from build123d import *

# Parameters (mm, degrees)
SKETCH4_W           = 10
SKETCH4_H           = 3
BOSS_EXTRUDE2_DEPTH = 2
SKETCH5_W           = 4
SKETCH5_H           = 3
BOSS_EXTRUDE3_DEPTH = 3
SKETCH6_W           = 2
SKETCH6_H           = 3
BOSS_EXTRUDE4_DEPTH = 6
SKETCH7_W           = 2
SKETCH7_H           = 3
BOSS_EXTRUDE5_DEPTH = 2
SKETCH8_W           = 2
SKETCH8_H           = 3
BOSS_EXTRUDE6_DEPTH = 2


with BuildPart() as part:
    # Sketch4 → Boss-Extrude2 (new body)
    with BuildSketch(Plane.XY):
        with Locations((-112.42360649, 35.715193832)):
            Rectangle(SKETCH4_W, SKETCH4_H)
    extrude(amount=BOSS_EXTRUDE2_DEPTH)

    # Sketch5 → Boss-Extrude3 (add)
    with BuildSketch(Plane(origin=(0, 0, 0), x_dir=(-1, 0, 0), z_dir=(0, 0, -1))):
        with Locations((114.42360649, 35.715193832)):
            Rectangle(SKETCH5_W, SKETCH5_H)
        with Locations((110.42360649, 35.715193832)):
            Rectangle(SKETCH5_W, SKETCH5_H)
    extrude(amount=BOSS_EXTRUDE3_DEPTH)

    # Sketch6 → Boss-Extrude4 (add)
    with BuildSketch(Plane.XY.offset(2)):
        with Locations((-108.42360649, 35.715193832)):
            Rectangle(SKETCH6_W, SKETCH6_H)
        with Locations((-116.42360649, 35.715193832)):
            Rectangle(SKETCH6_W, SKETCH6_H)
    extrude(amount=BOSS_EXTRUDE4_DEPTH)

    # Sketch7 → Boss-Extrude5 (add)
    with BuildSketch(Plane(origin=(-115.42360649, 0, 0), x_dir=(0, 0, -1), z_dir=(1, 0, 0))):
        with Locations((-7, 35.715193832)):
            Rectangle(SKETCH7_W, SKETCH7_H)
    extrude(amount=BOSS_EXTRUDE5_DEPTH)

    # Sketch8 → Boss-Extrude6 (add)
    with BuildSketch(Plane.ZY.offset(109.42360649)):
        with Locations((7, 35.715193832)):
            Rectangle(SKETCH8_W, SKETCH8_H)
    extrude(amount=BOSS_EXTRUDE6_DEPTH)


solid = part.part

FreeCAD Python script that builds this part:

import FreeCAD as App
import Part
import Sketcher

V = App.Vector
Q = App.Units.Quantity

doc = App.newDocument("Part")
params = doc.addObject("Spreadsheet::Sheet", "Params")
for row, (alias, value) in enumerate([
    ("sketch1_width", "10 mm"),
    ("sketch1_height", "3 mm"),
    ("pad1_length", "2 mm"),
    ("sketch2_width", "8 mm"),
    ("sketch2_height", "3 mm"),
    ("pad2_length", "3 mm"),
    ("sketch3_width", "2 mm"),
    ("sketch3_height", "3 mm"),
    ("pad3_length", "6 mm"),
    ("sketch4_width", "3 mm"),
    ("sketch4_height", "2 mm"),
    ("pad4_length", "2 mm"),
    ("sketch5_width", "3 mm"),
    ("sketch5_height", "2 mm"),
    ("pad5_length", "2 mm"),
], start=1):
    params.set(f"A{row}", alias)
    params.set(f"B{row}", "=" + value)
    params.setAlias(f"B{row}", alias)

body = doc.addObject("PartDesign::Body", "Body")

sketch1 = body.newObject("Sketcher::SketchObject", "Sketch")
sketch1.AttachmentSupport = (doc.getObject("XY_Plane"), [""])
sketch1.MapMode = "FlatFace"
sketch1.addGeometry([
    Part.LineSegment(V(-117.4, 37.2, 0), V(-117.4, 34.2, 0)),
    Part.LineSegment(V(-117.4, 34.2, 0), V(-107.4, 34.2, 0)),
    Part.LineSegment(V(-107.4, 34.2, 0), V(-107.4, 37.2, 0)),
    Part.LineSegment(V(-107.4, 37.2, 0), V(-117.4, 37.2, 0)),
], False)
sketch1.addConstraint([
    Sketcher.Constraint("Coincident", 0, 2, 1, 1),
    Sketcher.Constraint("Coincident", 1, 2, 2, 1),
    Sketcher.Constraint("Coincident", 2, 2, 3, 1),
    Sketcher.Constraint("Coincident", 3, 2, 0, 1),
    Sketcher.Constraint("Vertical", 0),
    Sketcher.Constraint("Horizontal", 1),
    Sketcher.Constraint("Vertical", 2),
    Sketcher.Constraint("Horizontal", 3),
    Sketcher.Constraint("DistanceX", 1, 1, 1, 2, Q("10 mm")),
    Sketcher.Constraint("DistanceY", 0, 2, 0, 1, Q("3 mm")),
    Sketcher.Constraint("DistanceX", 0, 2, -1, 1, Q("117.423606 mm")),
    Sketcher.Constraint("DistanceY", -1, 1, 0, 2, Q("34.215194 mm")),
])
sketch1.setExpression("Constraints[8]", "Params.sketch1_width")
sketch1.setExpression("Constraints[9]", "Params.sketch1_height")
pad1 = body.newObject("PartDesign::Pad", "Pad")
pad1.Profile = sketch1
pad1.setExpression("Length", "Params.pad1_length")

sketch2 = body.newObject("Sketcher::SketchObject", "Sketch001")
sketch2.AttachmentSupport = (doc.getObject("XY_Plane"), [""])
sketch2.MapMode = "FlatFace"
sketch2.addGeometry([
    Part.LineSegment(V(-116.4, 34.2, 0), V(-116.4, 37.2, 0)),
    Part.LineSegment(V(-116.4, 37.2, 0), V(-108.4, 37.2, 0)),
    Part.LineSegment(V(-108.4, 37.2, 0), V(-108.4, 34.2, 0)),
    Part.LineSegment(V(-108.4, 34.2, 0), V(-116.4, 34.2, 0)),
], False)
sketch2.addConstraint([
    Sketcher.Constraint("Coincident", 0, 2, 1, 1),
    Sketcher.Constraint("Coincident", 1, 2, 2, 1),
    Sketcher.Constraint("Coincident", 2, 2, 3, 1),
    Sketcher.Constraint("Coincident", 3, 2, 0, 1),
    Sketcher.Constraint("Vertical", 0),
    Sketcher.Constraint("Horizontal", 1),
    Sketcher.Constraint("Vertical", 2),
    Sketcher.Constraint("Horizontal", 3),
    Sketcher.Constraint("DistanceX", 1, 1, 1, 2, Q("8 mm")),
    Sketcher.Constraint("DistanceY", 0, 1, 0, 2, Q("3 mm")),
    Sketcher.Constraint("DistanceX", 0, 2, -1, 1, Q("116.423606 mm")),
    Sketcher.Constraint("DistanceY", -1, 1, 0, 2, Q("37.215194 mm")),
])
sketch2.setExpression("Constraints[8]", "Params.sketch2_width")
sketch2.setExpression("Constraints[9]", "Params.sketch2_height")
pad2 = body.newObject("PartDesign::Pad", "Pad001")
pad2.Profile = sketch2
pad2.setExpression("Length", "Params.pad2_length")
pad2.Reversed = True

sketch3 = body.newObject("Sketcher::SketchObject", "Sketch002")
sketch3.AttachmentSupport = (doc.getObject("XY_Plane"), [""])
sketch3.MapMode = "FlatFace"
sketch3.AttachmentOffset = App.Placement(V(0, 0, 2), App.Rotation())
sketch3.addGeometry([
    Part.LineSegment(V(-109.4, 37.2, 0), V(-109.4, 34.2, 0)),
    Part.LineSegment(V(-109.4, 34.2, 0), V(-107.4, 34.2, 0)),
    Part.LineSegment(V(-107.4, 34.2, 0), V(-107.4, 37.2, 0)),
    Part.LineSegment(V(-107.4, 37.2, 0), V(-109.4, 37.2, 0)),
    Part.LineSegment(V(-117.4, 37.2, 0), V(-117.4, 34.2, 0)),
    Part.LineSegment(V(-117.4, 34.2, 0), V(-115.4, 34.2, 0)),
    Part.LineSegment(V(-115.4, 34.2, 0), V(-115.4, 37.2, 0)),
    Part.LineSegment(V(-115.4, 37.2, 0), V(-117.4, 37.2, 0)),
], False)
sketch3.addConstraint([
    Sketcher.Constraint("Coincident", 0, 2, 1, 1),
    Sketcher.Constraint("Coincident", 1, 2, 2, 1),
    Sketcher.Constraint("Coincident", 2, 2, 3, 1),
    Sketcher.Constraint("Coincident", 3, 2, 0, 1),
    Sketcher.Constraint("Coincident", 4, 2, 5, 1),
    Sketcher.Constraint("Coincident", 5, 2, 6, 1),
    Sketcher.Constraint("Coincident", 6, 2, 7, 1),
    Sketcher.Constraint("Coincident", 7, 2, 4, 1),
    Sketcher.Constraint("Vertical", 0),
    Sketcher.Constraint("Horizontal", 1),
    Sketcher.Constraint("Vertical", 2),
    Sketcher.Constraint("Horizontal", 3),
    Sketcher.Constraint("Vertical", 4),
    Sketcher.Constraint("Horizontal", 5),
    Sketcher.Constraint("Vertical", 6),
    Sketcher.Constraint("Horizontal", 7),
    Sketcher.Constraint("Horizontal", 1, 2, 4, 2),
    Sketcher.Constraint("Horizontal", 3, 2, 6, 2),
    Sketcher.Constraint("Equal", 3, 5),
    Sketcher.Constraint("DistanceX", 1, 1, 1, 2, Q("2 mm")),
    Sketcher.Constraint("DistanceY", 0, 2, 0, 1, Q("3 mm")),
    Sketcher.Constraint("DistanceX", 4, 2, 0, 2, Q("8 mm")),
    Sketcher.Constraint("DistanceX", 0, 2, -1, 1, Q("109.423606 mm")),
    Sketcher.Constraint("DistanceY", -1, 1, 0, 2, Q("34.215194 mm")),
])
sketch3.setExpression("Constraints[19]", "Params.sketch3_width")
sketch3.setExpression("Constraints[20]", "Params.sketch3_height")
pad3 = body.newObject("PartDesign::Pad", "Pad002")
pad3.Profile = sketch3
pad3.setExpression("Length", "Params.pad3_length")

sketch4 = body.newObject("Sketcher::SketchObject", "Sketch003")
sketch4.AttachmentSupport = (doc.getObject("YZ_Plane"), [""])
sketch4.MapMode = "FlatFace"
sketch4.AttachmentOffset = App.Placement(V(0, 0, -115.423606), App.Rotation())
sketch4.addGeometry([
    Part.LineSegment(V(37.2, 8, 0), V(34.2, 8, 0)),
    Part.LineSegment(V(34.2, 8, 0), V(34.2, 6, 0)),
    Part.LineSegment(V(34.2, 6, 0), V(37.2, 6, 0)),
    Part.LineSegment(V(37.2, 6, 0), V(37.2, 8, 0)),
], False)
sketch4.addConstraint([
    Sketcher.Constraint("Coincident", 0, 2, 1, 1),
    Sketcher.Constraint("Coincident", 1, 2, 2, 1),
    Sketcher.Constraint("Coincident", 2, 2, 3, 1),
    Sketcher.Constraint("Coincident", 3, 2, 0, 1),
    Sketcher.Constraint("Horizontal", 0),
    Sketcher.Constraint("Vertical", 1),
    Sketcher.Constraint("Horizontal", 2),
    Sketcher.Constraint("Vertical", 3),
    Sketcher.Constraint("DistanceX", 0, 2, 0, 1, Q("3 mm")),
    Sketcher.Constraint("DistanceY", 1, 2, 1, 1, Q("2 mm")),
    Sketcher.Constraint("DistanceY", -1, 1, 0, 2, Q("8 mm")),
    Sketcher.Constraint("DistanceX", -1, 1, 0, 2, Q("34.215194 mm")),
])
sketch4.setExpression("Constraints[8]", "Params.sketch4_width")
sketch4.setExpression("Constraints[9]", "Params.sketch4_height")
pad4 = body.newObject("PartDesign::Pad", "Pad003")
pad4.Profile = sketch4
pad4.setExpression("Length", "Params.pad4_length")

sketch5 = body.newObject("Sketcher::SketchObject", "Sketch004")
sketch5.AttachmentSupport = (doc.getObject("YZ_Plane"), [""])
sketch5.MapMode = "FlatFace"
sketch5.AttachmentOffset = App.Placement(V(0, 0, -109.423606), App.Rotation())
sketch5.addGeometry([
    Part.LineSegment(V(37.2, 6, 0), V(34.2, 6, 0)),
    Part.LineSegment(V(34.2, 6, 0), V(34.2, 8, 0)),
    Part.LineSegment(V(34.2, 8, 0), V(37.2, 8, 0)),
    Part.LineSegment(V(37.2, 8, 0), V(37.2, 6, 0)),
], False)
sketch5.addConstraint([
    Sketcher.Constraint("Coincident", 0, 2, 1, 1),
    Sketcher.Constraint("Coincident", 1, 2, 2, 1),
    Sketcher.Constraint("Coincident", 2, 2, 3, 1),
    Sketcher.Constraint("Coincident", 3, 2, 0, 1),
    Sketcher.Constraint("Horizontal", 0),
    Sketcher.Constraint("Vertical", 1),
    Sketcher.Constraint("Horizontal", 2),
    Sketcher.Constraint("Vertical", 3),
    Sketcher.Constraint("DistanceX", 0, 2, 0, 1, Q("3 mm")),
    Sketcher.Constraint("DistanceY", 1, 1, 1, 2, Q("2 mm")),
    Sketcher.Constraint("DistanceY", -1, 1, 0, 2, Q("6 mm")),
    Sketcher.Constraint("DistanceX", -1, 1, 0, 2, Q("34.215194 mm")),
])
sketch5.setExpression("Constraints[8]", "Params.sketch5_width")
sketch5.setExpression("Constraints[9]", "Params.sketch5_height")
pad5 = body.newObject("PartDesign::Pad", "Pad004")
pad5.Profile = sketch5
pad5.setExpression("Length", "Params.pad5_length")
pad5.Reversed = True

doc.recompute()
